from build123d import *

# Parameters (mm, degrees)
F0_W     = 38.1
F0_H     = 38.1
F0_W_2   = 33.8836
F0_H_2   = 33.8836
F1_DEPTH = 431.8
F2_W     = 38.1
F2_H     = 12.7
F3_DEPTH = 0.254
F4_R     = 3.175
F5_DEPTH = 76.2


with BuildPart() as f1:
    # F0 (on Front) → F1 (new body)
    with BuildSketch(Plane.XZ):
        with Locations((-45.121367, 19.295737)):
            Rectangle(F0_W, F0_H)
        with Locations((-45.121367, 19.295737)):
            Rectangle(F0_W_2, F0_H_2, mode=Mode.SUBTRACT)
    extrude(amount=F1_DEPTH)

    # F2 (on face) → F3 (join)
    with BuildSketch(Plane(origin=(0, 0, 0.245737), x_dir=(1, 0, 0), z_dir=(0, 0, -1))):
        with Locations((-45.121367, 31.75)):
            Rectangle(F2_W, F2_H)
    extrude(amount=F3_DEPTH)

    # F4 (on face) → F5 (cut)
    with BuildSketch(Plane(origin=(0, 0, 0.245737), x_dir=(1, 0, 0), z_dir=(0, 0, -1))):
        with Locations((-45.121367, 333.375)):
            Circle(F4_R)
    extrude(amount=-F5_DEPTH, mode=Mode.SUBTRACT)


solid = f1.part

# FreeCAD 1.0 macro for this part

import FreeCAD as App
import Part
import Sketcher
from FreeCAD import Vector
Q = App.Units.Quantity


def add_polygon(sketch, points):
    """Adds a closed chain of lines whose ends are joined by coincident constraints."""
    first, n = sketch.GeometryCount, len(points)
    for a, b in zip(points, points[1:] + points[:1]):
        sketch.addGeometry(Part.LineSegment(App.Vector(*a, 0), App.Vector(*b, 0)), False)
    for i in range(n):
        sketch.addConstraint(Sketcher.Constraint("Coincident", first + i, 2, first + (i + 1) % n, 1))

doc = App.newDocument("Part")
body = doc.addObject("PartDesign::Body", "Body")

# Sketch on XZ plane
sketch1 = doc.addObject("Sketcher::SketchObject", "Sketch")
body.addObject(sketch1)
sketch1.AttachmentSupport = (doc.XZ_Plane, [""])
sketch1.MapMode = "FlatFace"
add_polygon(sketch1, [(-64, 38), (-64, 0), (-26, 0), (-26, 38)])  # lines 0-3
add_polygon(sketch1, [(-28, 2), (-62, 2), (-62, 36), (-28, 36)])  # lines 4-7
sketch1.addConstraint(Sketcher.Constraint("Vertical", 0))
sketch1.addConstraint(Sketcher.Constraint("Horizontal", 1))
sketch1.addConstraint(Sketcher.Constraint("Vertical", 2))
sketch1.addConstraint(Sketcher.Constraint("Horizontal", 3))
sketch1.addConstraint(Sketcher.Constraint("Horizontal", 4))
sketch1.addConstraint(Sketcher.Constraint("Vertical", 5))
sketch1.addConstraint(Sketcher.Constraint("Horizontal", 6))
sketch1.addConstraint(Sketcher.Constraint("Vertical", 7))
sketch1.addConstraint(Sketcher.Constraint("Equal", 3, 0))
sketch1.addConstraint(Sketcher.Constraint("Equal", 6, 5))
sketch1.addConstraint(Sketcher.Constraint("DistanceX", 1, 1, 1, 2, Q("1.5 in")))
sketch1.addConstraint(Sketcher.Constraint("DistanceX", 4, 2, 4, 1, Q("1.334 in")))
sketch1.addConstraint(Sketcher.Constraint("DistanceX", 0, 2, 4, 2, Q("0.083 in")))
sketch1.addConstraint(Sketcher.Constraint("DistanceY", 0, 2, 4, 2, Q("0.083 in")))
sketch1.addConstraint(Sketcher.Constraint("DistanceX", 0, 2, -1, 1, 64.171367))
sketch1.addConstraint(Sketcher.Constraint("DistanceY", -1, 1, 0, 2, 0.245737))
pad1 = doc.addObject("PartDesign::Pad", "Pad")
body.addObject(pad1)
pad1.Profile = sketch1
pad1.Length = Q("17 in")

# Sketch on XY plane
sketch2 = doc.addObject("Sketcher::SketchObject", "Sketch001")
body.addObject(sketch2)
sketch2.AttachmentSupport = (doc.XY_Plane, [""])
sketch2.MapMode = "FlatFace"
sketch2.AttachmentOffset = App.Placement(Vector(0, 0, 0.245737), App.Rotation())
add_polygon(sketch2, [(-64, -38), (-64, -25), (-26, -25), (-26, -38)])  # lines 0-3
sketch2.addConstraint(Sketcher.Constraint("Vertical", 0))
sketch2.addConstraint(Sketcher.Constraint("Horizontal", 1))
sketch2.addConstraint(Sketcher.Constraint("Vertical", 2))
sketch2.addConstraint(Sketcher.Constraint("Horizontal", 3))
sketch2.addConstraint(Sketcher.Constraint("DistanceX", 1, 1, 1, 2, Q("1.5 in")))
sketch2.addConstraint(Sketcher.Constraint("DistanceY", 0, 1, 0, 2, Q("0.5 in")))
sketch2.addConstraint(Sketcher.Constraint("DistanceY", 0, 2, -1, 1, Q("1 in")))
sketch2.addConstraint(Sketcher.Constraint("DistanceX", 0, 2, -1, 1, 64.171367))
pad2 = doc.addObject("PartDesign::Pad", "Pad001")
body.addObject(pad2)
pad2.Profile = sketch2
pad2.Length = Q("0.01 in")
pad2.Reversed = True

# Sketch on XY plane
sketch3 = doc.addObject("Sketcher::SketchObject", "Sketch002")
body.addObject(sketch3)
sketch3.AttachmentSupport = (doc.XY_Plane, [""])
sketch3.MapMode = "FlatFace"
sketch3.AttachmentOffset = App.Placement(Vector(0, 0, 0.245737), App.Rotation())
sketch3.addGeometry(Part.Circle(Vector(-45.1, -333.4, 0), Vector(0, 0, 1), 3.2), False)
sketch3.addConstraint(Sketcher.Constraint("Diameter", 0, Q("0.25 in")))
sketch3.addConstraint(Sketcher.Constraint("DistanceY", 0, 3, -1, 1, Q("13.125 in")))
sketch3.addConstraint(Sketcher.Constraint("DistanceX", 0, 3, -1, 1, 45.121367))
pocket1 = doc.addObject("PartDesign::Pocket", "Pocket")
body.addObject(pocket1)
pocket1.Profile = sketch3
pocket1.Length = Q("3 in")
pocket1.Reversed = True

doc.recompute()
